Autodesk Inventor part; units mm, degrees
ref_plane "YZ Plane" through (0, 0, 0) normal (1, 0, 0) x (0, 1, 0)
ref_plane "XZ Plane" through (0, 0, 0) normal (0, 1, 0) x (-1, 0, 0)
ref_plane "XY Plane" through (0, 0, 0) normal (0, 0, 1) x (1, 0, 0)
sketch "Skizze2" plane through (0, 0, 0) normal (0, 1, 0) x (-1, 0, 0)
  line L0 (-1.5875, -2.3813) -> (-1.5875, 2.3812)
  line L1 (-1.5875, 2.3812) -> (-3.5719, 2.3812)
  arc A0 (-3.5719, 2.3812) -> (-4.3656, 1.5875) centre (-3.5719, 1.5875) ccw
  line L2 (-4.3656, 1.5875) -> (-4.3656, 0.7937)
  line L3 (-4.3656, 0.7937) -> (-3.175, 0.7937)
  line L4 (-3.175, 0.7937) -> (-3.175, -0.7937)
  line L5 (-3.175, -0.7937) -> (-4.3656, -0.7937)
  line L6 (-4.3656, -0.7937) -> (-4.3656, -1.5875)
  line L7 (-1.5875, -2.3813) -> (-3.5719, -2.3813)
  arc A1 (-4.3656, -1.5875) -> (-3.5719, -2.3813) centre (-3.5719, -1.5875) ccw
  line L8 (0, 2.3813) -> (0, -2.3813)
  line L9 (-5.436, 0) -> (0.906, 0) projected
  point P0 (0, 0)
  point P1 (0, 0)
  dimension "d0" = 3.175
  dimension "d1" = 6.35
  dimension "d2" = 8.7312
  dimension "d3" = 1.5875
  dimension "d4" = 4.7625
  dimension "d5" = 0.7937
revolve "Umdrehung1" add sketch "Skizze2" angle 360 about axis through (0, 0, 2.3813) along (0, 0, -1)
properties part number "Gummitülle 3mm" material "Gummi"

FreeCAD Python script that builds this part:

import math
import FreeCAD as App
import Part
import Sketcher

V = App.Vector
Q = App.Units.Quantity

doc = App.newDocument("Part")
body = doc.addObject("PartDesign::Body", "Body")

# Sketch on XZ plane
sketch1 = doc.addObject("Sketcher::SketchObject", "Sketch")
body.addObject(sketch1)
sketch1.AttachmentSupport = (doc.XZ_Plane, [""])
sketch1.MapMode = "FlatFace"
sketch1.addGeometry([
    Part.LineSegment(V(3.6, -2.4, 0), V(1.6, -2.4, 0)),  # 0
    Part.LineSegment(V(1.6, -2.4, 0), V(1.6, 2.4, 0)),  # 1
    Part.LineSegment(V(1.6, 2.4, 0), V(3.6, 2.4, 0)),  # 2
    Part.ArcOfCircle(Part.Circle(V(3.6, 1.6, 0), V(0, 0, 1), 0.8), math.radians(0), math.radians(90)),  # 3
    Part.LineSegment(V(4.4, 1.6, 0), V(4.4, 0.8, 0)),  # 4
    Part.LineSegment(V(4.4, 0.8, 0), V(3.2, 0.8, 0)),  # 5
    Part.LineSegment(V(3.2, 0.8, 0), V(3.2, -0.8, 0)),  # 6
    Part.LineSegment(V(3.2, -0.8, 0), V(4.4, -0.8, 0)),  # 7
    Part.LineSegment(V(4.4, -0.8, 0), V(4.4, -1.6, 0)),  # 8
    Part.ArcOfCircle(Part.Circle(V(3.6, -1.6, 0), V(0, 0, 1), 0.8), math.radians(-90), math.radians(0)),  # 9
], False)
sketch1.addConstraint([
    Sketcher.Constraint("Coincident", 0, 2, 1, 1),
    Sketcher.Constraint("Coincident", 1, 2, 2, 1),
    Sketcher.Constraint("Tangent", 2, 2, 3, 2),
    Sketcher.Constraint("Tangent", 3, 1, 4, 1),
    Sketcher.Constraint("Coincident", 4, 2, 5, 1),
    Sketcher.Constraint("Coincident", 5, 2, 6, 1),
    Sketcher.Constraint("Coincident", 6, 2, 7, 1),
    Sketcher.Constraint("Coincident", 7, 2, 8, 1),
    Sketcher.Constraint("Tangent", 8, 2, 9, 2),
    Sketcher.Constraint("Tangent", 9, 1, 0, 1),
    Sketcher.Constraint("Horizontal", 0),
    Sketcher.Constraint("Vertical", 1),
    Sketcher.Constraint("Horizontal", 2),
    Sketcher.Constraint("Vertical", 4),
    Sketcher.Constraint("Horizontal", 5),
    Sketcher.Constraint("Vertical", 6),
    Sketcher.Constraint("Horizontal", 7),
    Sketcher.Constraint("Vertical", 8),
    Sketcher.Constraint("Equal", 3, 9),
    Sketcher.Constraint("Symmetric", 3, 3, 9, 3, -1),
    Sketcher.Constraint("Equal", 4, 8),
    Sketcher.Constraint("Radius", 3, Q("0.031248 in")),
    Sketcher.Constraint("DistanceY", 1, 1, 1, 2, Q("0.1875 in")),
    Sketcher.Constraint("DistanceY", 4, 2, 4, 1, Q("0.031252 in")),
    Sketcher.Constraint("DistanceX", -1, 1, 0, 2, Q("0.0625 in")),
    Sketcher.Constraint("DistanceX", -1, 1, 5, 2, Q("0.125 in")),
    Sketcher.Constraint("DistanceX", 0, 2, 0, 1, Q("0.078126 in")),
])
revolution = doc.addObject("PartDesign::Revolution", "Revolution")
body.addObject(revolution)
revolution.Profile = sketch1
revolution.ReferenceAxis = (sketch1, ["V_Axis"])
revolution.Angle = 360

doc.recompute()
